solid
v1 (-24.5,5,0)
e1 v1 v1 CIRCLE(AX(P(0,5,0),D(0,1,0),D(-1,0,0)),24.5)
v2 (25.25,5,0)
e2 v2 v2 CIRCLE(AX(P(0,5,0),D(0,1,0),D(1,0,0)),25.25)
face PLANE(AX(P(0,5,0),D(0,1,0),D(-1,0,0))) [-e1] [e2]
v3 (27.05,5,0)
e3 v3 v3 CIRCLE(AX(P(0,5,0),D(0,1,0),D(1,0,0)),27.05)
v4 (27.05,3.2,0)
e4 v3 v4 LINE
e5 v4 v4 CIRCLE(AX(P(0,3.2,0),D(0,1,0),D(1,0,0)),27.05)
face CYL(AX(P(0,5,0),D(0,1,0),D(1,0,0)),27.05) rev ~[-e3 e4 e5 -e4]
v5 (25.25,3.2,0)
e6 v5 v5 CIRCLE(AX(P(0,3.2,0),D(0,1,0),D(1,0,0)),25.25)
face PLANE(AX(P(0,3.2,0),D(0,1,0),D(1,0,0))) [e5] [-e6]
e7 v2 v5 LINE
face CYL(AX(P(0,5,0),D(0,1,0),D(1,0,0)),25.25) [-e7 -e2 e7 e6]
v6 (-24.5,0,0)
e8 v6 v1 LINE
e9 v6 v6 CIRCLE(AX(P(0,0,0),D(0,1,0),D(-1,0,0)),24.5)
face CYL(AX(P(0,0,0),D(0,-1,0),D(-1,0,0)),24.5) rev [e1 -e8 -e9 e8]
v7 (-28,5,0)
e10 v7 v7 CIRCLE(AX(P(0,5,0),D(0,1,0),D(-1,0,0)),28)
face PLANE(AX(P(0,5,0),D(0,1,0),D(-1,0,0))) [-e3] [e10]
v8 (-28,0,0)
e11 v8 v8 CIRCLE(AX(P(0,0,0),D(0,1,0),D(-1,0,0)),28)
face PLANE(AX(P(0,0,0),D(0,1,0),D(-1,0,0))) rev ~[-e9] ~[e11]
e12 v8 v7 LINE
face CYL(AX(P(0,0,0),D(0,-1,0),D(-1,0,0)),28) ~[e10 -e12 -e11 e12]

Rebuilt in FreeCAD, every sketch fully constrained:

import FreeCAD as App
import Part
import Sketcher
from FreeCAD import Vector
Q = App.Units.Quantity

doc = App.newDocument("Part")
body = doc.addObject("PartDesign::Body", "Body")

sketch1 = body.newObject("Sketcher::SketchObject", "Sketch")
sketch1.AttachmentSupport = (doc.getObject("XZ_Plane"), [""])
sketch1.MapMode = "FlatFace"
sketch1.addGeometry([
    Part.Circle(Vector(0, 0, 0), Vector(0, 0, 1), 28),
    Part.Circle(Vector(0, 0, 0), Vector(0, 0, 1), 24),
], False)
sketch1.addConstraint([
    Sketcher.Constraint("Coincident", 0, 3, -1, 1),
    Sketcher.Constraint("Coincident", 1, 3, -1, 1),
    Sketcher.Constraint("Diameter", 0, Q("56 mm")),
    Sketcher.Constraint("Diameter", 1, Q("49 mm")),
])
pad1 = body.newObject("PartDesign::Pad", "Pad")
pad1.Profile = sketch1
pad1.Length = 5
pad1.Reversed = True

sketch2 = body.newObject("Sketcher::SketchObject", "Sketch001")
sketch2.AttachmentSupport = (doc.getObject("XZ_Plane"), [""])
sketch2.MapMode = "FlatFace"
sketch2.AttachmentOffset = App.Placement(Vector(0, 0, -5), App.Rotation())
sketch2.addGeometry([
    Part.Circle(Vector(0, 0, 0), Vector(0, 0, 1), 27),
    Part.Circle(Vector(0, 0, 0), Vector(0, 0, 1), 25),
], False)
sketch2.addConstraint([
    Sketcher.Constraint("Coincident", 0, 3, -1, 1),
    Sketcher.Constraint("Coincident", 1, 3, -1, 1),
    Sketcher.Constraint("Diameter", 0, Q("54.1 mm")),
    Sketcher.Constraint("Diameter", 1, Q("50.5 mm")),
])
pocket1 = body.newObject("PartDesign::Pocket", "Pocket")
pocket1.Profile = sketch2
pocket1.Length = 1.8
pocket1.Reversed = True

doc.recompute()
